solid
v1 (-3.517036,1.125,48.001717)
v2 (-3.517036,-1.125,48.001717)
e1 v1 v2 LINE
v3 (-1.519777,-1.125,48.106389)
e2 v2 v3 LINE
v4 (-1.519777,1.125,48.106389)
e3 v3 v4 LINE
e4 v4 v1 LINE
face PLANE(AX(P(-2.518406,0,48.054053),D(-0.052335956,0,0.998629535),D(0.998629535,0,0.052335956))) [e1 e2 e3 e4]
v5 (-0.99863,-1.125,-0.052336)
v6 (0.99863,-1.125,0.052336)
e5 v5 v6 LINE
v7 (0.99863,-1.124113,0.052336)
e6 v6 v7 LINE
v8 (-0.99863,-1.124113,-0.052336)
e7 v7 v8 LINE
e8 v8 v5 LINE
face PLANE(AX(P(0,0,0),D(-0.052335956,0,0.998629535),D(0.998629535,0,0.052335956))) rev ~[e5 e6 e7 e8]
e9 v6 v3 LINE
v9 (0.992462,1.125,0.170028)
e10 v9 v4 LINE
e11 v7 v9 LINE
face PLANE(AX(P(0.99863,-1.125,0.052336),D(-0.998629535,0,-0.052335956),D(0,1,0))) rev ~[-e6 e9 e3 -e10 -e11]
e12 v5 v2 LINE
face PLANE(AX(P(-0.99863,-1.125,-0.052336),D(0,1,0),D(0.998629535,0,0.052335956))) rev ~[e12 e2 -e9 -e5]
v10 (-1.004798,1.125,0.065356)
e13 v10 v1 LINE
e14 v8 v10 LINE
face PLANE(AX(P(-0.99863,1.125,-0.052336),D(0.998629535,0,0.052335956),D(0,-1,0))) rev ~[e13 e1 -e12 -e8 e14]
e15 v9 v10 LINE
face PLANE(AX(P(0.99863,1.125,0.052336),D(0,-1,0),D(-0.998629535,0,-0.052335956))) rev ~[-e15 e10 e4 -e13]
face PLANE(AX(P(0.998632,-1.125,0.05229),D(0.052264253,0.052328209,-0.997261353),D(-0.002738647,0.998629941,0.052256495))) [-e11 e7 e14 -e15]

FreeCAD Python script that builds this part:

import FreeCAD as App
import Part
import Sketcher
Q = App.Units.Quantity

doc = App.newDocument("Part")
params = doc.addObject("Spreadsheet::Sheet", "Params")
for row, (alias, value) in enumerate([
    ("sketch1_height", "2 mm"),
    ("sketch1_width", "2.25 mm"),
    ("pad1_length", "48.12 mm"),
    ("sketch2_height", "2.25 mm"),
    ("pocket1_length", "2 mm"),
], start=1):
    params.set(f"A{row}", alias)
    params.set(f"B{row}", "=" + value)
    params.setAlias(f"B{row}", alias)

body = doc.addObject("PartDesign::Body", "Body")

sketch1 = body.newObject("Sketcher::SketchObject", "Sketch")
sketch1.Placement = App.Placement(App.Vector(0, 0, 0), App.Rotation(App.Vector(0, 1, 0), App.Vector(-0.998629535, 0, -0.052335956), App.Vector(-0.052335956, 0, 0.998629535), "ZXY"))
sketch1.addGeometry(Part.LineSegment(App.Vector(-1.125, -1, 0), App.Vector(1.125, -1, 0)), False)
sketch1.addGeometry(Part.LineSegment(App.Vector(1.125, -1, 0), App.Vector(1.125, 1, 0)), False)
sketch1.addGeometry(Part.LineSegment(App.Vector(1.125, 1, 0), App.Vector(-1.125, 1, 0)), False)
sketch1.addGeometry(Part.LineSegment(App.Vector(-1.125, 1, 0), App.Vector(-1.125, -1, 0)), False)
sketch1.addConstraint(Sketcher.Constraint("Coincident", 0, 2, 1, 1))
sketch1.addConstraint(Sketcher.Constraint("Coincident", 1, 2, 2, 1))
sketch1.addConstraint(Sketcher.Constraint("Coincident", 2, 2, 3, 1))
sketch1.addConstraint(Sketcher.Constraint("Coincident", 3, 2, 0, 1))
sketch1.addConstraint(Sketcher.Constraint("Horizontal", 0))
sketch1.addConstraint(Sketcher.Constraint("Vertical", 1))
sketch1.addConstraint(Sketcher.Constraint("Horizontal", 2))
sketch1.addConstraint(Sketcher.Constraint("Vertical", 3))
sketch1.addConstraint(Sketcher.Constraint("Symmetric", 0, 2, 2, 2, -1, 1))
sketch1.addConstraint(Sketcher.Constraint("DistanceY", 1, 1, 1, 2, 2.0))
sketch1.addConstraint(Sketcher.Constraint("DistanceX", 0, 1, 0, 2, 2.25))
sketch1.setExpression("Constraints[9]", "Params.sketch1_height")
sketch1.setExpression("Constraints[10]", "Params.sketch1_width")
pad1 = body.newObject("PartDesign::Pad", "Pad")
pad1.Profile = sketch1
pad1.setExpression("Length", "Params.pad1_length")

sketch2 = body.newObject("Sketcher::SketchObject", "Sketch001")
sketch2.Placement = App.Placement(App.Vector(-0.2574, 0, 24.0194), App.Rotation(App.Vector(0.052335956, 0, -0.998629535), App.Vector(0, 1, 0), App.Vector(0.998629535, 0, 0.052335956), "ZXY"))
sketch2.addGeometry(Part.LineSegment(App.Vector(23.8821, 1.125, 0), App.Vector(24, -1.125, 0)), False)
sketch2.addGeometry(Part.LineSegment(App.Vector(24, -1.125, 0), App.Vector(24, 1.125, 0)), False)
sketch2.addGeometry(Part.LineSegment(App.Vector(24, 1.125, 0), App.Vector(23.8821, 1.125, 0)), False)
sketch2.addConstraint(Sketcher.Constraint("Coincident", 0, 2, 1, 1))
sketch2.addConstraint(Sketcher.Constraint("Coincident", 1, 2, 2, 1))
sketch2.addConstraint(Sketcher.Constraint("Coincident", 2, 2, 0, 1))
sketch2.addConstraint(Sketcher.Constraint("Vertical", 1))
sketch2.addConstraint(Sketcher.Constraint("Horizontal", 2))
sketch2.addConstraint(Sketcher.Constraint("Angle", 0, Q("-87.0004 deg")))
sketch2.addConstraint(Sketcher.Constraint("DistanceX", -1, 1, 0, 2, 24.0))
sketch2.addConstraint(Sketcher.Constraint("DistanceY", 1, 1, 1, 2, 2.25))
sketch2.addConstraint(Sketcher.Constraint("DistanceY", 0, 2, -1, 1, 1.125))
sketch2.setExpression("Constraints[7]", "Params.sketch2_height")
pocket1 = body.newObject("PartDesign::Pocket", "Pocket")
pocket1.Profile = sketch2
pocket1.setExpression("Length", "Params.pocket1_length")

doc.recompute()
